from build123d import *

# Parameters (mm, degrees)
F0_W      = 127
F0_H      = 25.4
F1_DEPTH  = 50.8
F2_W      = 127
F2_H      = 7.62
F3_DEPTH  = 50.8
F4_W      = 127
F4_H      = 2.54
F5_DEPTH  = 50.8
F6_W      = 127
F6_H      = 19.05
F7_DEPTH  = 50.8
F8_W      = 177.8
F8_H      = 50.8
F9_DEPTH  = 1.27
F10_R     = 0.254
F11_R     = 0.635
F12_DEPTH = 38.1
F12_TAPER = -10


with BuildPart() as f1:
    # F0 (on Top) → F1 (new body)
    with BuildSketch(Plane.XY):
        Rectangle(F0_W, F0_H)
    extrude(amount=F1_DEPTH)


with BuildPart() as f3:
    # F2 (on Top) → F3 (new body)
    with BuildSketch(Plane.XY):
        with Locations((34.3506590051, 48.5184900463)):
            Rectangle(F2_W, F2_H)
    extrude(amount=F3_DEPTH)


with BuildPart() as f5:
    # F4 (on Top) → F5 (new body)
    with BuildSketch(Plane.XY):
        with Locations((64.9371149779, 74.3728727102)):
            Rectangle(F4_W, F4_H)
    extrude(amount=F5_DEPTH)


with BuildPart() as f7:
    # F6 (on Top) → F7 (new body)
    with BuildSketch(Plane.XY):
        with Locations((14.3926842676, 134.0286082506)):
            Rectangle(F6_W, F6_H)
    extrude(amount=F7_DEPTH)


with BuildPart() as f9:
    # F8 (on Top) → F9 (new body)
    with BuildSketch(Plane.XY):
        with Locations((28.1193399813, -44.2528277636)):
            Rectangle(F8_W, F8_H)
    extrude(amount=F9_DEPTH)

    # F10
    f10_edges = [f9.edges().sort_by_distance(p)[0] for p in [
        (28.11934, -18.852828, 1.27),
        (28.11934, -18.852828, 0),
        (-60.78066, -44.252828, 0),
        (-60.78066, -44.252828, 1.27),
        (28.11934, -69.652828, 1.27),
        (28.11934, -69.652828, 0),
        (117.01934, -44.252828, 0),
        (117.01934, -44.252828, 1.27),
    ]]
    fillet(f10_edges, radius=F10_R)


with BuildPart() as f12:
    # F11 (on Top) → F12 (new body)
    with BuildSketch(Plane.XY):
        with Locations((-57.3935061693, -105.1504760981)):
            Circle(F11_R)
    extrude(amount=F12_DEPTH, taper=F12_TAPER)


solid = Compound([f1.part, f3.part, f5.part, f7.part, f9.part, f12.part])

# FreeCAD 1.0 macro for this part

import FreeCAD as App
import Part
import Sketcher
from FreeCAD import Vector
Q = App.Units.Quantity


def edges_at(feature, points):
    """Names of the edges that pass closest to the given points."""
    edges = feature.Shape.Edges
    near = lambda p: min(range(len(edges)), key=lambda i: edges[i].distToShape(Part.Vertex(*p))[0])
    return sorted({f"Edge{near(p) + 1}" for p in points})

doc = App.newDocument("Part")
params = doc.addObject("Spreadsheet::Sheet", "Params")
for row, (alias, value) in enumerate([
    ("sketch1_width", "5 in"),
    ("sketch1_height", "1 in"),
    ("pad1_length", "2 in"),
    ("sketch2_width", "5 in"),
    ("sketch2_height", "0.3 in"),
    ("pad2_length", "2 in"),
    ("sketch3_width", "5 in"),
    ("sketch3_height", "0.1 in"),
    ("pad3_length", "2 in"),
    ("sketch4_width", "5 in"),
    ("sketch4_height", "0.75 in"),
    ("pad4_length", "2 in"),
    ("sketch5_width", "7 in"),
    ("sketch5_height", "2 in"),
    ("pad5_length", "0.05 in"),
    ("fillet_radius", "0.01 in"),
    ("sketch6_diameter", "0.05 in"),
    ("pad6_length", "1.5 in"),
    ("pad6_taper", "10 deg"),
], start=1):
    params.set(f"A{row}", alias)
    params.set(f"B{row}", "=" + value)
    params.setAlias(f"B{row}", alias)

body = doc.addObject("PartDesign::Body", "Body")

# Sketch on XY plane
sketch1 = body.newObject("Sketcher::SketchObject", "Sketch")
sketch1.AttachmentSupport = (doc.getObject("XY_Plane"), [""])
sketch1.MapMode = "FlatFace"
sketch1.addGeometry([
    Part.LineSegment(Vector(-64, 13, 0), Vector(-64, -13, 0)),
    Part.LineSegment(Vector(-64, -13, 0), Vector(64, -13, 0)),
    Part.LineSegment(Vector(64, -13, 0), Vector(64, 13, 0)),
    Part.LineSegment(Vector(64, 13, 0), Vector(-64, 13, 0)),
], False)
sketch1.addConstraint([
    Sketcher.Constraint("Coincident", 0, 2, 1, 1),
    Sketcher.Constraint("Coincident", 1, 2, 2, 1),
    Sketcher.Constraint("Coincident", 2, 2, 3, 1),
    Sketcher.Constraint("Coincident", 3, 2, 0, 1),
    Sketcher.Constraint("Vertical", 0),
    Sketcher.Constraint("Horizontal", 1),
    Sketcher.Constraint("Vertical", 2),
    Sketcher.Constraint("Horizontal", 3),
    Sketcher.Constraint("Symmetric", 0, 2, 2, 2, -1, 1),
    Sketcher.Constraint("DistanceX", 1, 1, 1, 2, Q("5 in")),
    Sketcher.Constraint("DistanceY", 0, 2, 0, 1, Q("1 in")),
])
sketch1.setExpression("Constraints[9]", "Params.sketch1_width")
sketch1.setExpression("Constraints[10]", "Params.sketch1_height")
pad1 = body.newObject("PartDesign::Pad", "Pad")
pad1.Profile = sketch1
pad1.setExpression("Length", "Params.pad1_length")
body2 = doc.addObject("PartDesign::Body", "Body001")

# Sketch on XY plane
sketch2 = body2.newObject("Sketcher::SketchObject", "Sketch001")
sketch2.AttachmentSupport = (doc.getObject("XY_Plane001"), [""])
sketch2.MapMode = "FlatFace"
sketch2.addGeometry([
    Part.LineSegment(Vector(-29, 52, 0), Vector(-29, 45, 0)),
    Part.LineSegment(Vector(-29, 45, 0), Vector(98, 45, 0)),
    Part.LineSegment(Vector(98, 45, 0), Vector(98, 52, 0)),
    Part.LineSegment(Vector(98, 52, 0), Vector(-29, 52, 0)),
], False)
sketch2.addConstraint([
    Sketcher.Constraint("Coincident", 0, 2, 1, 1),
    Sketcher.Constraint("Coincident", 1, 2, 2, 1),
    Sketcher.Constraint("Coincident", 2, 2, 3, 1),
    Sketcher.Constraint("Coincident", 3, 2, 0, 1),
    Sketcher.Constraint("Vertical", 0),
    Sketcher.Constraint("Horizontal", 1),
    Sketcher.Constraint("Vertical", 2),
    Sketcher.Constraint("Horizontal", 3),
    Sketcher.Constraint("DistanceX", 1, 1, 1, 2, Q("5 in")),
    Sketcher.Constraint("DistanceY", 0, 2, 0, 1, Q("0.3 in")),
    Sketcher.Constraint("DistanceX", 0, 2, -1, 1, Q("29.149341 mm")),
    Sketcher.Constraint("DistanceY", -1, 1, 0, 2, Q("44.70849 mm")),
])
sketch2.setExpression("Constraints[8]", "Params.sketch2_width")
sketch2.setExpression("Constraints[9]", "Params.sketch2_height")
pad2 = body2.newObject("PartDesign::Pad", "Pad001")
pad2.Profile = sketch2
pad2.setExpression("Length", "Params.pad2_length")
body3 = doc.addObject("PartDesign::Body", "Body002")

# Sketch on XY plane
sketch3 = body3.newObject("Sketcher::SketchObject", "Sketch002")
sketch3.AttachmentSupport = (doc.getObject("XY_Plane002"), [""])
sketch3.MapMode = "FlatFace"
sketch3.addGeometry([
    Part.LineSegment(Vector(1.4, 75.6, 0), Vector(1.4, 73.1, 0)),
    Part.LineSegment(Vector(1.4, 73.1, 0), Vector(128.4, 73.1, 0)),
    Part.LineSegment(Vector(128.4, 73.1, 0), Vector(128.4, 75.6, 0)),
    Part.LineSegment(Vector(128.4, 75.6, 0), Vector(1.4, 75.6, 0)),
], False)
sketch3.addConstraint([
    Sketcher.Constraint("Coincident", 0, 2, 1, 1),
    Sketcher.Constraint("Coincident", 1, 2, 2, 1),
    Sketcher.Constraint("Coincident", 2, 2, 3, 1),
    Sketcher.Constraint("Coincident", 3, 2, 0, 1),
    Sketcher.Constraint("Vertical", 0),
    Sketcher.Constraint("Horizontal", 1),
    Sketcher.Constraint("Vertical", 2),
    Sketcher.Constraint("Horizontal", 3),
    Sketcher.Constraint("DistanceX", 1, 1, 1, 2, Q("5 in")),
    Sketcher.Constraint("DistanceY", 0, 2, 0, 1, Q("0.1 in")),
    Sketcher.Constraint("DistanceX", -1, 1, 0, 2, Q("1.437115 mm")),
    Sketcher.Constraint("DistanceY", -1, 1, 0, 2, Q("73.102873 mm")),
])
sketch3.setExpression("Constraints[8]", "Params.sketch3_width")
sketch3.setExpression("Constraints[9]", "Params.sketch3_height")
pad3 = body3.newObject("PartDesign::Pad", "Pad002")
pad3.Profile = sketch3
pad3.setExpression("Length", "Params.pad3_length")
body4 = doc.addObject("PartDesign::Body", "Body003")

# Sketch on XY plane
sketch4 = body4.newObject("Sketcher::SketchObject", "Sketch003")
sketch4.AttachmentSupport = (doc.getObject("XY_Plane003"), [""])
sketch4.MapMode = "FlatFace"
sketch4.addGeometry([
    Part.LineSegment(Vector(-49, 144, 0), Vector(-49, 125, 0)),
    Part.LineSegment(Vector(-49, 125, 0), Vector(78, 125, 0)),
    Part.LineSegment(Vector(78, 125, 0), Vector(78, 144, 0)),
    Part.LineSegment(Vector(78, 144, 0), Vector(-49, 144, 0)),
], False)
sketch4.addConstraint([
    Sketcher.Constraint("Coincident", 0, 2, 1, 1),
    Sketcher.Constraint("Coincident", 1, 2, 2, 1),
    Sketcher.Constraint("Coincident", 2, 2, 3, 1),
    Sketcher.Constraint("Coincident", 3, 2, 0, 1),
    Sketcher.Constraint("Vertical", 0),
    Sketcher.Constraint("Horizontal", 1),
    Sketcher.Constraint("Vertical", 2),
    Sketcher.Constraint("Horizontal", 3),
    Sketcher.Constraint("DistanceX", 1, 1, 1, 2, Q("5 in")),
    Sketcher.Constraint("DistanceY", 0, 2, 0, 1, Q("0.75 in")),
    Sketcher.Constraint("DistanceY", -1, 1, 0, 2, Q("124.503608 mm")),
    Sketcher.Constraint("DistanceX", 0, 2, -1, 1, Q("49.107316 mm")),
])
sketch4.setExpression("Constraints[8]", "Params.sketch4_width")
sketch4.setExpression("Constraints[9]", "Params.sketch4_height")
pad4 = body4.newObject("PartDesign::Pad", "Pad003")
pad4.Profile = sketch4
pad4.setExpression("Length", "Params.pad4_length")
body5 = doc.addObject("PartDesign::Body", "Body004")

# Sketch on XY plane
sketch5 = body5.newObject("Sketcher::SketchObject", "Sketch004")
sketch5.AttachmentSupport = (doc.getObject("XY_Plane004"), [""])
sketch5.MapMode = "FlatFace"
sketch5.addGeometry([
    Part.LineSegment(Vector(-61, -19, 0), Vector(-61, -70, 0)),
    Part.LineSegment(Vector(-61, -70, 0), Vector(117, -70, 0)),
    Part.LineSegment(Vector(117, -70, 0), Vector(117, -19, 0)),
    Part.LineSegment(Vector(117, -19, 0), Vector(-61, -19, 0)),
], False)
sketch5.addConstraint([
    Sketcher.Constraint("Coincident", 0, 2, 1, 1),
    Sketcher.Constraint("Coincident", 1, 2, 2, 1),
    Sketcher.Constraint("Coincident", 2, 2, 3, 1),
    Sketcher.Constraint("Coincident", 3, 2, 0, 1),
    Sketcher.Constraint("Vertical", 0),
    Sketcher.Constraint("Horizontal", 1),
    Sketcher.Constraint("Vertical", 2),
    Sketcher.Constraint("Horizontal", 3),
    Sketcher.Constraint("DistanceX", 1, 1, 1, 2, Q("7 in")),
    Sketcher.Constraint("DistanceY", 0, 2, 0, 1, Q("2 in")),
    Sketcher.Constraint("DistanceX", 0, 2, -1, 1, Q("60.78066 mm")),
    Sketcher.Constraint("DistanceY", 0, 2, -1, 1, Q("69.652828 mm")),
])
sketch5.setExpression("Constraints[8]", "Params.sketch5_width")
sketch5.setExpression("Constraints[9]", "Params.sketch5_height")
pad5 = body5.newObject("PartDesign::Pad", "Pad004")
pad5.Profile = sketch5
pad5.setExpression("Length", "Params.pad5_length")
doc.recompute()

fillet = body5.newObject("PartDesign::Fillet", "Fillet")
fillet.Base = (pad5, edges_at(pad5, [
    (28.119, -18.853, 1.27),
    (28.119, -18.853, 0),
    (-60.781, -44.253, 0),
    (-60.781, -44.253, 1.27),
    (28.119, -69.653, 1.27),
    (28.119, -69.653, 0),
    (117.019, -44.253, 0),
    (117.019, -44.253, 1.27),
]))
fillet.setExpression("Radius", "Params.fillet_radius")
body6 = doc.addObject("PartDesign::Body", "Body005")

# Sketch on XY plane
sketch6 = body6.newObject("Sketcher::SketchObject", "Sketch005")
sketch6.AttachmentSupport = (doc.getObject("XY_Plane005"), [""])
sketch6.MapMode = "FlatFace"
sketch6.addGeometry(Part.Circle(Vector(-57.4, -105.2, 0), Vector(0, 0, 1), 0.6), False)
sketch6.addConstraint([
    Sketcher.Constraint("Diameter", 0, Q("0.05 in")),
    Sketcher.Constraint("DistanceX", 0, 3, -1, 1, Q("57.393506 mm")),
    Sketcher.Constraint("DistanceY", 0, 3, -1, 1, Q("105.150476 mm")),
])
sketch6.setExpression("Constraints[0]", "Params.sketch6_diameter")
pad6 = body6.newObject("PartDesign::Pad", "Pad005")
pad6.Profile = sketch6
pad6.setExpression("Length", "Params.pad6_length")
pad6.setExpression("TaperAngle", "Params.pad6_taper")

doc.recompute()
